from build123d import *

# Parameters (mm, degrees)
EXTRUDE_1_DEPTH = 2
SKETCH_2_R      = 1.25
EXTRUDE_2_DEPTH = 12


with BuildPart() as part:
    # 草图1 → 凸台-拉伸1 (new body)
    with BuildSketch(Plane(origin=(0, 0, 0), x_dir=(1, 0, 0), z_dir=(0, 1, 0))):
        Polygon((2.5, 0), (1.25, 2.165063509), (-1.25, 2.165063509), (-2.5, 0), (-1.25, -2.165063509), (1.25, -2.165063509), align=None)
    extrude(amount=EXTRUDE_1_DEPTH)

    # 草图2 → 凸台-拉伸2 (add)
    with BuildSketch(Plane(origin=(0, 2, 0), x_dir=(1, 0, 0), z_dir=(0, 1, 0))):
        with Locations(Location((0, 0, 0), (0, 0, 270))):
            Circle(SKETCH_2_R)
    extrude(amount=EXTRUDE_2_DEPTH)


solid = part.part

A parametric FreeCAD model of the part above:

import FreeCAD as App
import Part
import Sketcher

V = App.Vector
Q = App.Units.Quantity

doc = App.newDocument("Part")
body = doc.addObject("PartDesign::Body", "Body")

# Sketch on XZ plane
sketch1 = body.newObject("Sketcher::SketchObject", "Sketch")
sketch1.AttachmentSupport = (doc.getObject("XZ_Plane"), [""])
sketch1.MapMode = "FlatFace"
sketch1.addGeometry(Part.LineSegment(V(2.5, 0, 0), V(1.25, -2.165064, 0)), False)
sketch1.addGeometry(Part.LineSegment(V(1.25, -2.165064, 0), V(-1.25, -2.165064, 0)), False)
sketch1.addGeometry(Part.LineSegment(V(-1.25, -2.165064, 0), V(-2.5, 0, 0)), False)
sketch1.addGeometry(Part.LineSegment(V(-2.5, 0, 0), V(-1.25, 2.165064, 0)), False)
sketch1.addGeometry(Part.LineSegment(V(-1.25, 2.165064, 0), V(1.25, 2.165064, 0)), False)
sketch1.addGeometry(Part.LineSegment(V(1.25, 2.165064, 0), V(2.5, 0, 0)), False)
sketch1.addConstraint(Sketcher.Constraint("Coincident", 0, 2, 1, 1))
sketch1.addConstraint(Sketcher.Constraint("Coincident", 1, 2, 2, 1))
sketch1.addConstraint(Sketcher.Constraint("Coincident", 2, 2, 3, 1))
sketch1.addConstraint(Sketcher.Constraint("Coincident", 3, 2, 4, 1))
sketch1.addConstraint(Sketcher.Constraint("Coincident", 4, 2, 5, 1))
sketch1.addConstraint(Sketcher.Constraint("Coincident", 5, 2, 0, 1))
sketch1.addConstraint(Sketcher.Constraint("Horizontal", 1))
sketch1.addConstraint(Sketcher.Constraint("Horizontal", 4))
sketch1.addConstraint(Sketcher.Constraint("Symmetric", 0, 2, 3, 2, -1, 1))
sketch1.addConstraint(Sketcher.Constraint("Symmetric", 2, 2, 5, 2, -1, 1))
sketch1.addConstraint(Sketcher.Constraint("PointOnObject", 2, 2, -1))
sketch1.addConstraint(Sketcher.Constraint("Parallel", 2, 5))
sketch1.addConstraint(Sketcher.Constraint("Vertical", 1, 2, 3, 2))
sketch1.addConstraint(Sketcher.Constraint("Angle", 0, Q("-120 deg")))
sketch1.addConstraint(Sketcher.Constraint("DistanceX", 1, 2, 1, 1, 2.5))
sketch1.addConstraint(Sketcher.Constraint("DistanceX", 2, 2, 5, 2, 5.0))
pad1 = body.newObject("PartDesign::Pad", "Pad")
pad1.Profile = sketch1
pad1.Length = 2
pad1.Reversed = True

# Sketch on XZ plane
sketch2 = body.newObject("Sketcher::SketchObject", "Sketch001")
sketch2.AttachmentSupport = (doc.getObject("XZ_Plane"), [""])
sketch2.MapMode = "FlatFace"
sketch2.AttachmentOffset = App.Placement(V(0, 0, -2), App.Rotation())
sketch2.addGeometry(Part.Circle(V(0, 0, 0), V(0, 0, 1), 1.25), False)
sketch2.addConstraint(Sketcher.Constraint("Coincident", 0, 3, -1, 1))
sketch2.addConstraint(Sketcher.Constraint("Diameter", 0, 2.5))
pad2 = body.newObject("PartDesign::Pad", "Pad001")
pad2.Profile = sketch2
pad2.Length = 12
pad2.Reversed = True

doc.recompute()
